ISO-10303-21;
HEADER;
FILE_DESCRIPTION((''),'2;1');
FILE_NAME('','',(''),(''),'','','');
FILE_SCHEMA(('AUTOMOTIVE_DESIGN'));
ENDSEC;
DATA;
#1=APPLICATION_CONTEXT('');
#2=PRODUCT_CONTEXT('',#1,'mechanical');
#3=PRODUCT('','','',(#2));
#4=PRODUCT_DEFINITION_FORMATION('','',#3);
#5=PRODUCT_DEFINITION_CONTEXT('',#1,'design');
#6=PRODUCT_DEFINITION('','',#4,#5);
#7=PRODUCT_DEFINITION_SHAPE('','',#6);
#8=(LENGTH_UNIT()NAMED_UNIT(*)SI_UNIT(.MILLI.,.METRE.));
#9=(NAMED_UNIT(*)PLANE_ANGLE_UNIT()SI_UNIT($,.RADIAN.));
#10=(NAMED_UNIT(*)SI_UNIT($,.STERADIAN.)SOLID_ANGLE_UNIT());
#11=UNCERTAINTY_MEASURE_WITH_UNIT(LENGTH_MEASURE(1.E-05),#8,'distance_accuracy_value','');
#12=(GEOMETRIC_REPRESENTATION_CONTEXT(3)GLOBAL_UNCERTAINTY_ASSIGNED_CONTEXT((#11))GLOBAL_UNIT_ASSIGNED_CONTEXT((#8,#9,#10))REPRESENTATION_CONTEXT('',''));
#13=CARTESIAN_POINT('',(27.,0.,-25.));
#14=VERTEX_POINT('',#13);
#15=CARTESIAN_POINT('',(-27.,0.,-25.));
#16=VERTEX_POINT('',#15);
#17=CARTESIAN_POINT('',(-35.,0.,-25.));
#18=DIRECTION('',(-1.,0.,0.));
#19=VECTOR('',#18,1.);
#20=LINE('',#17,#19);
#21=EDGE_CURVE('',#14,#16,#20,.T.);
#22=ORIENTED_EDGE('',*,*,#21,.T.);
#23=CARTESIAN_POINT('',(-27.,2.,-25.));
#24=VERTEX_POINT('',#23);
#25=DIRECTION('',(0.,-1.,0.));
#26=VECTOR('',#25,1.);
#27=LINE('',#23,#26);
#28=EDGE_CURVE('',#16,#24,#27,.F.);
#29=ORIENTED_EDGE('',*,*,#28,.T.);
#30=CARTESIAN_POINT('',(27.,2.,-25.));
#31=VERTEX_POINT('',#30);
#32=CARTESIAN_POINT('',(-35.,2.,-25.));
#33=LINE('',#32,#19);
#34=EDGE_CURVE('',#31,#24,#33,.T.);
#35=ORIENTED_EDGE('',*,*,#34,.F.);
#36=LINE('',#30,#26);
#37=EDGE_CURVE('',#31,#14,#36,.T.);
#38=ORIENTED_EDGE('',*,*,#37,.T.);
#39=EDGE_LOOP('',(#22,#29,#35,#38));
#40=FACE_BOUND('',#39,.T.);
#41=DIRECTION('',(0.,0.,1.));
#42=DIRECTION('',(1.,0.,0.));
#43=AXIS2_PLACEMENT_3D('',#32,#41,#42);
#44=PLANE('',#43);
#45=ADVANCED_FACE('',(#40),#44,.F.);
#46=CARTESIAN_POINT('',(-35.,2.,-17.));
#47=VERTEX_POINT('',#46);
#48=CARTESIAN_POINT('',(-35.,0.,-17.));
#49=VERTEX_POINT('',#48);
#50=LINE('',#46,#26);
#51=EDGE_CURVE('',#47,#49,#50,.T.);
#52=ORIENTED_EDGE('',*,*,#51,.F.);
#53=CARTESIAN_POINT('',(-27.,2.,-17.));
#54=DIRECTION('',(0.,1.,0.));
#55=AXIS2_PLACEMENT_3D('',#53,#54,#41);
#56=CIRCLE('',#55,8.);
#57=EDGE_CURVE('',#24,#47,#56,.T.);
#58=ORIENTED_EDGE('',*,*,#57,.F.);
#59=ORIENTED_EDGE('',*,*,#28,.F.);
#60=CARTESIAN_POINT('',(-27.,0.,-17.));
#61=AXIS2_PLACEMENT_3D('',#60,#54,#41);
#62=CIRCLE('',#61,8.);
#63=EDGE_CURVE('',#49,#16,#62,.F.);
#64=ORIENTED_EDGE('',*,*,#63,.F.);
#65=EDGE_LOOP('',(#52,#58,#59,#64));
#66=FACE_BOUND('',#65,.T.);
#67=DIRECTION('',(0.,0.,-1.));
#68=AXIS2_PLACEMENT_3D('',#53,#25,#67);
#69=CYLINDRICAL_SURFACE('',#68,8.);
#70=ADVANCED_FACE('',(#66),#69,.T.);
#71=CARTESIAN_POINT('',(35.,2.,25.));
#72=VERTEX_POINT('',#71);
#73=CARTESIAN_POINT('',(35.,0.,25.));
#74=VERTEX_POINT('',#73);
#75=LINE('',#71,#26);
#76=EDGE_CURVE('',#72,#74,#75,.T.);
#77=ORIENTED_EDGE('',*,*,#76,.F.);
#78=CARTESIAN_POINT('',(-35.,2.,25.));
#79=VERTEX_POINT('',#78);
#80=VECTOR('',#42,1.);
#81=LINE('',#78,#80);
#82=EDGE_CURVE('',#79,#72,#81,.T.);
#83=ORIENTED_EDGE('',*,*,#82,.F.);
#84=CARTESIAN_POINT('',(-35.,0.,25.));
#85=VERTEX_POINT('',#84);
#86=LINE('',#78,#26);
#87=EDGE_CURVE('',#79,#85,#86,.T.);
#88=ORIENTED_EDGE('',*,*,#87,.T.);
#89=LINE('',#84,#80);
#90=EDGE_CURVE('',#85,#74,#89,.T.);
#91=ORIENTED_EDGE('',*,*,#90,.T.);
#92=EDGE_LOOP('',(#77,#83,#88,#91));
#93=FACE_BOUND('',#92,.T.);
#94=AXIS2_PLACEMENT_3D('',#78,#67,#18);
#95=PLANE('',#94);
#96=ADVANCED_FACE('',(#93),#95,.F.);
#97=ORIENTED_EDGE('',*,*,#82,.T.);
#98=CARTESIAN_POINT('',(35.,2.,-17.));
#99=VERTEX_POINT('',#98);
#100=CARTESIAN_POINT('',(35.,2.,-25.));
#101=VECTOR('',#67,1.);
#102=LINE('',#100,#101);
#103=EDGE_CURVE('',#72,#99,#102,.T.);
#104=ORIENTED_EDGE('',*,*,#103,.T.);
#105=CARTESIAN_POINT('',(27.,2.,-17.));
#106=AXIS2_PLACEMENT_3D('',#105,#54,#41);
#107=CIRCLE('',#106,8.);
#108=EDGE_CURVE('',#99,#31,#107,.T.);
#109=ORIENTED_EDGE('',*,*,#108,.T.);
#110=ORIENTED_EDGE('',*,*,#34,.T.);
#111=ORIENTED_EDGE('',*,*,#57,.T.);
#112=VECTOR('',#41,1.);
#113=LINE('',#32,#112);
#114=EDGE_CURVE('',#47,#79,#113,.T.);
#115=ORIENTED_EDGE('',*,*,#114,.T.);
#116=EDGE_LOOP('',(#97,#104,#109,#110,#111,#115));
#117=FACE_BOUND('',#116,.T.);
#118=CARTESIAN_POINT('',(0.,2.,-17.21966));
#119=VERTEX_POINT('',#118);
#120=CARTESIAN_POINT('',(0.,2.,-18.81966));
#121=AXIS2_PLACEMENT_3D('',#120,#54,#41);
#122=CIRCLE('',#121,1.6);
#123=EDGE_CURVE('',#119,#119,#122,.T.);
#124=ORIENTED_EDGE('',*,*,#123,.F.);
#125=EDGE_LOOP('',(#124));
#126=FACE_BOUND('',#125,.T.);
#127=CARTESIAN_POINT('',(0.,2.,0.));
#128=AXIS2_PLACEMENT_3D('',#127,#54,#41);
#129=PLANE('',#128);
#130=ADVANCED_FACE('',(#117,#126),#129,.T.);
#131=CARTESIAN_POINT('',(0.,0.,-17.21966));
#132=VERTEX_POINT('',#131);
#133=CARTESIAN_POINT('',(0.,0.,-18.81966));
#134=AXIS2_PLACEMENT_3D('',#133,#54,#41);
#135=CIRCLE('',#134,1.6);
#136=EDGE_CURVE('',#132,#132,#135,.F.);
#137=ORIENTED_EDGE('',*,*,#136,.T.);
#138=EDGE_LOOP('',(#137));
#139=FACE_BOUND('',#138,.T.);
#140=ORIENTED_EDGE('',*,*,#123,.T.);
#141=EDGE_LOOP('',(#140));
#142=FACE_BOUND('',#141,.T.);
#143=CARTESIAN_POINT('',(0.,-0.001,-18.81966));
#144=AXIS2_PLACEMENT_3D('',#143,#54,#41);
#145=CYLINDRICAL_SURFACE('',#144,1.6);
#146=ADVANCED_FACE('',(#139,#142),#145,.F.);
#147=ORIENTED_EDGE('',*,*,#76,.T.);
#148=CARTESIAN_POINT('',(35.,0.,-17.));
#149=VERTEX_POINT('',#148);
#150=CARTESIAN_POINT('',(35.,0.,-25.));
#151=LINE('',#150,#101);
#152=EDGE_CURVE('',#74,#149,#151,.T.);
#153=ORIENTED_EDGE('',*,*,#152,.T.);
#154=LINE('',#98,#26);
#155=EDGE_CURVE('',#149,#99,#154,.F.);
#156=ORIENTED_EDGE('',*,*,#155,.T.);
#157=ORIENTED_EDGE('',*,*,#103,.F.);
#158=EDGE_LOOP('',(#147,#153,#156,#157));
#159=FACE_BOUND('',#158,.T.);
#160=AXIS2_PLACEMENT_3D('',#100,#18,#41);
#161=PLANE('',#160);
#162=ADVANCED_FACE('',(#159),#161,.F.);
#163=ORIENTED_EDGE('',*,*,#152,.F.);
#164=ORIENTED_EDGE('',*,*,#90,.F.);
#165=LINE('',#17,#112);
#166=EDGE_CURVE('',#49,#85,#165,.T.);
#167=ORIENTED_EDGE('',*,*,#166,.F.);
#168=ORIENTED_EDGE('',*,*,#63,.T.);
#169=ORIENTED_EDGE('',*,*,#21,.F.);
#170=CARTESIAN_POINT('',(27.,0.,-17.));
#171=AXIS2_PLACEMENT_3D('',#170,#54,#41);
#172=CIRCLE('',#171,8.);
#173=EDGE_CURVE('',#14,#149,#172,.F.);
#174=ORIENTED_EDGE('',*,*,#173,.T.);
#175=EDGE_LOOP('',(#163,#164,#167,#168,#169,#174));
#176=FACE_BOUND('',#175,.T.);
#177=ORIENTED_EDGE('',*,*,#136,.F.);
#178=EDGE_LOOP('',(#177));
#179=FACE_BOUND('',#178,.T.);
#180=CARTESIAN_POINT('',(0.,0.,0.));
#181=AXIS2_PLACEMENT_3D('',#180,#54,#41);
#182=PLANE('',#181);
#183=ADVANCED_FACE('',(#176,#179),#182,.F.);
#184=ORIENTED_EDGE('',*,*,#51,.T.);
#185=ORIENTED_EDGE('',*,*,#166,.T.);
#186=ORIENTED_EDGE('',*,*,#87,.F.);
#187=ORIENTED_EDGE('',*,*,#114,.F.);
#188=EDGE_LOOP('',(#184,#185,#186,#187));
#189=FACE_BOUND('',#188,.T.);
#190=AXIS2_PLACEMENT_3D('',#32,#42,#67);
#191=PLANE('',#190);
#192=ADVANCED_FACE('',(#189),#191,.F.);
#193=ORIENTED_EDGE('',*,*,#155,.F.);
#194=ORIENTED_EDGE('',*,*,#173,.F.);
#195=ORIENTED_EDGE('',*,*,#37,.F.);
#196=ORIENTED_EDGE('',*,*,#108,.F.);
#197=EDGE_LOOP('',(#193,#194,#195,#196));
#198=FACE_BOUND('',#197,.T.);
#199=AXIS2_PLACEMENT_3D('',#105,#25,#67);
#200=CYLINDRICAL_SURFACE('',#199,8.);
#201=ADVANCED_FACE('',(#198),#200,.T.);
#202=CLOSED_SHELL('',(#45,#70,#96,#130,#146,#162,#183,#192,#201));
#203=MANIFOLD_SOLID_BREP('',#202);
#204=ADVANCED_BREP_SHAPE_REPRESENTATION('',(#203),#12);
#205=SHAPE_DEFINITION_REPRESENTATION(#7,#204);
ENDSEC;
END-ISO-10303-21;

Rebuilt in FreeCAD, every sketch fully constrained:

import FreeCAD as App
import Part
import Sketcher
Q = App.Units.Quantity


def edges_at(feature, points):
    """Names of the edges that pass closest to the given points."""
    edges = feature.Shape.Edges
    near = lambda p: min(range(len(edges)), key=lambda i: edges[i].distToShape(Part.Vertex(*p))[0])
    return sorted({f"Edge{near(p) + 1}" for p in points})


def add_polygon(sketch, points):
    """Adds a closed chain of lines whose ends are joined by coincident constraints."""
    first, n = sketch.GeometryCount, len(points)
    for a, b in zip(points, points[1:] + points[:1]):
        sketch.addGeometry(Part.LineSegment(App.Vector(*a, 0), App.Vector(*b, 0)), False)
    for i in range(n):
        sketch.addConstraint(Sketcher.Constraint("Coincident", first + i, 2, first + (i + 1) % n, 1))

doc = App.newDocument("Part")
body = doc.addObject("PartDesign::Body", "Body")

sketch1 = body.newObject("Sketcher::SketchObject", "Sketch")
sketch1.AttachmentSupport = (doc.getObject("XZ_Plane"), [""])
sketch1.MapMode = "FlatFace"
add_polygon(sketch1, [(-35, -25), (-35, 25), (35, 25), (35, -25)])
sketch1.addConstraint([
    Sketcher.Constraint("Vertical", 0),
    Sketcher.Constraint("Horizontal", 1),
    Sketcher.Constraint("Vertical", 2),
    Sketcher.Constraint("Horizontal", 3),
    Sketcher.Constraint("Symmetric", 0, 2, 2, 2, -1, 1),
    Sketcher.Constraint("DistanceX", 1, 1, 1, 2, Q("70 mm")),
    Sketcher.Constraint("DistanceY", 0, 1, 0, 2, Q("50 mm")),
])
pad1 = body.newObject("PartDesign::Pad", "Pad")
pad1.Profile = sketch1
pad1.Length = 2
pad1.Reversed = True
doc.recompute()

fillet = body.newObject("PartDesign::Fillet", "Fillet")
fillet.Base = (pad1, edges_at(pad1, [(-35, 1, -25), (35, 1, -25)]))
fillet.Radius = 8

sketch2 = body.newObject("Sketcher::SketchObject", "Sketch001")
sketch2.AttachmentSupport = (doc.getObject("XZ_Plane"), [""])
sketch2.MapMode = "FlatFace"
sketch2.AttachmentOffset = App.Placement(App.Vector(0, 0, -2), App.Rotation())
sketch2.addGeometry(Part.Circle(App.Vector(0, -18.8, 0), App.Vector(0, 0, 1), 1.6), False)
sketch2.addConstraint([
    Sketcher.Constraint("PointOnObject", 0, 3, -2),
    Sketcher.Constraint("Diameter", 0, Q("3.2 mm")),
    Sketcher.Constraint("DistanceY", 0, 3, -1, 1, Q("18.81966 mm")),
])
pocket1 = body.newObject("PartDesign::Pocket", "Pocket")
pocket1.Profile = sketch2
pocket1.Type = "UpToFirst"
pocket1.Reversed = True

doc.recompute()
